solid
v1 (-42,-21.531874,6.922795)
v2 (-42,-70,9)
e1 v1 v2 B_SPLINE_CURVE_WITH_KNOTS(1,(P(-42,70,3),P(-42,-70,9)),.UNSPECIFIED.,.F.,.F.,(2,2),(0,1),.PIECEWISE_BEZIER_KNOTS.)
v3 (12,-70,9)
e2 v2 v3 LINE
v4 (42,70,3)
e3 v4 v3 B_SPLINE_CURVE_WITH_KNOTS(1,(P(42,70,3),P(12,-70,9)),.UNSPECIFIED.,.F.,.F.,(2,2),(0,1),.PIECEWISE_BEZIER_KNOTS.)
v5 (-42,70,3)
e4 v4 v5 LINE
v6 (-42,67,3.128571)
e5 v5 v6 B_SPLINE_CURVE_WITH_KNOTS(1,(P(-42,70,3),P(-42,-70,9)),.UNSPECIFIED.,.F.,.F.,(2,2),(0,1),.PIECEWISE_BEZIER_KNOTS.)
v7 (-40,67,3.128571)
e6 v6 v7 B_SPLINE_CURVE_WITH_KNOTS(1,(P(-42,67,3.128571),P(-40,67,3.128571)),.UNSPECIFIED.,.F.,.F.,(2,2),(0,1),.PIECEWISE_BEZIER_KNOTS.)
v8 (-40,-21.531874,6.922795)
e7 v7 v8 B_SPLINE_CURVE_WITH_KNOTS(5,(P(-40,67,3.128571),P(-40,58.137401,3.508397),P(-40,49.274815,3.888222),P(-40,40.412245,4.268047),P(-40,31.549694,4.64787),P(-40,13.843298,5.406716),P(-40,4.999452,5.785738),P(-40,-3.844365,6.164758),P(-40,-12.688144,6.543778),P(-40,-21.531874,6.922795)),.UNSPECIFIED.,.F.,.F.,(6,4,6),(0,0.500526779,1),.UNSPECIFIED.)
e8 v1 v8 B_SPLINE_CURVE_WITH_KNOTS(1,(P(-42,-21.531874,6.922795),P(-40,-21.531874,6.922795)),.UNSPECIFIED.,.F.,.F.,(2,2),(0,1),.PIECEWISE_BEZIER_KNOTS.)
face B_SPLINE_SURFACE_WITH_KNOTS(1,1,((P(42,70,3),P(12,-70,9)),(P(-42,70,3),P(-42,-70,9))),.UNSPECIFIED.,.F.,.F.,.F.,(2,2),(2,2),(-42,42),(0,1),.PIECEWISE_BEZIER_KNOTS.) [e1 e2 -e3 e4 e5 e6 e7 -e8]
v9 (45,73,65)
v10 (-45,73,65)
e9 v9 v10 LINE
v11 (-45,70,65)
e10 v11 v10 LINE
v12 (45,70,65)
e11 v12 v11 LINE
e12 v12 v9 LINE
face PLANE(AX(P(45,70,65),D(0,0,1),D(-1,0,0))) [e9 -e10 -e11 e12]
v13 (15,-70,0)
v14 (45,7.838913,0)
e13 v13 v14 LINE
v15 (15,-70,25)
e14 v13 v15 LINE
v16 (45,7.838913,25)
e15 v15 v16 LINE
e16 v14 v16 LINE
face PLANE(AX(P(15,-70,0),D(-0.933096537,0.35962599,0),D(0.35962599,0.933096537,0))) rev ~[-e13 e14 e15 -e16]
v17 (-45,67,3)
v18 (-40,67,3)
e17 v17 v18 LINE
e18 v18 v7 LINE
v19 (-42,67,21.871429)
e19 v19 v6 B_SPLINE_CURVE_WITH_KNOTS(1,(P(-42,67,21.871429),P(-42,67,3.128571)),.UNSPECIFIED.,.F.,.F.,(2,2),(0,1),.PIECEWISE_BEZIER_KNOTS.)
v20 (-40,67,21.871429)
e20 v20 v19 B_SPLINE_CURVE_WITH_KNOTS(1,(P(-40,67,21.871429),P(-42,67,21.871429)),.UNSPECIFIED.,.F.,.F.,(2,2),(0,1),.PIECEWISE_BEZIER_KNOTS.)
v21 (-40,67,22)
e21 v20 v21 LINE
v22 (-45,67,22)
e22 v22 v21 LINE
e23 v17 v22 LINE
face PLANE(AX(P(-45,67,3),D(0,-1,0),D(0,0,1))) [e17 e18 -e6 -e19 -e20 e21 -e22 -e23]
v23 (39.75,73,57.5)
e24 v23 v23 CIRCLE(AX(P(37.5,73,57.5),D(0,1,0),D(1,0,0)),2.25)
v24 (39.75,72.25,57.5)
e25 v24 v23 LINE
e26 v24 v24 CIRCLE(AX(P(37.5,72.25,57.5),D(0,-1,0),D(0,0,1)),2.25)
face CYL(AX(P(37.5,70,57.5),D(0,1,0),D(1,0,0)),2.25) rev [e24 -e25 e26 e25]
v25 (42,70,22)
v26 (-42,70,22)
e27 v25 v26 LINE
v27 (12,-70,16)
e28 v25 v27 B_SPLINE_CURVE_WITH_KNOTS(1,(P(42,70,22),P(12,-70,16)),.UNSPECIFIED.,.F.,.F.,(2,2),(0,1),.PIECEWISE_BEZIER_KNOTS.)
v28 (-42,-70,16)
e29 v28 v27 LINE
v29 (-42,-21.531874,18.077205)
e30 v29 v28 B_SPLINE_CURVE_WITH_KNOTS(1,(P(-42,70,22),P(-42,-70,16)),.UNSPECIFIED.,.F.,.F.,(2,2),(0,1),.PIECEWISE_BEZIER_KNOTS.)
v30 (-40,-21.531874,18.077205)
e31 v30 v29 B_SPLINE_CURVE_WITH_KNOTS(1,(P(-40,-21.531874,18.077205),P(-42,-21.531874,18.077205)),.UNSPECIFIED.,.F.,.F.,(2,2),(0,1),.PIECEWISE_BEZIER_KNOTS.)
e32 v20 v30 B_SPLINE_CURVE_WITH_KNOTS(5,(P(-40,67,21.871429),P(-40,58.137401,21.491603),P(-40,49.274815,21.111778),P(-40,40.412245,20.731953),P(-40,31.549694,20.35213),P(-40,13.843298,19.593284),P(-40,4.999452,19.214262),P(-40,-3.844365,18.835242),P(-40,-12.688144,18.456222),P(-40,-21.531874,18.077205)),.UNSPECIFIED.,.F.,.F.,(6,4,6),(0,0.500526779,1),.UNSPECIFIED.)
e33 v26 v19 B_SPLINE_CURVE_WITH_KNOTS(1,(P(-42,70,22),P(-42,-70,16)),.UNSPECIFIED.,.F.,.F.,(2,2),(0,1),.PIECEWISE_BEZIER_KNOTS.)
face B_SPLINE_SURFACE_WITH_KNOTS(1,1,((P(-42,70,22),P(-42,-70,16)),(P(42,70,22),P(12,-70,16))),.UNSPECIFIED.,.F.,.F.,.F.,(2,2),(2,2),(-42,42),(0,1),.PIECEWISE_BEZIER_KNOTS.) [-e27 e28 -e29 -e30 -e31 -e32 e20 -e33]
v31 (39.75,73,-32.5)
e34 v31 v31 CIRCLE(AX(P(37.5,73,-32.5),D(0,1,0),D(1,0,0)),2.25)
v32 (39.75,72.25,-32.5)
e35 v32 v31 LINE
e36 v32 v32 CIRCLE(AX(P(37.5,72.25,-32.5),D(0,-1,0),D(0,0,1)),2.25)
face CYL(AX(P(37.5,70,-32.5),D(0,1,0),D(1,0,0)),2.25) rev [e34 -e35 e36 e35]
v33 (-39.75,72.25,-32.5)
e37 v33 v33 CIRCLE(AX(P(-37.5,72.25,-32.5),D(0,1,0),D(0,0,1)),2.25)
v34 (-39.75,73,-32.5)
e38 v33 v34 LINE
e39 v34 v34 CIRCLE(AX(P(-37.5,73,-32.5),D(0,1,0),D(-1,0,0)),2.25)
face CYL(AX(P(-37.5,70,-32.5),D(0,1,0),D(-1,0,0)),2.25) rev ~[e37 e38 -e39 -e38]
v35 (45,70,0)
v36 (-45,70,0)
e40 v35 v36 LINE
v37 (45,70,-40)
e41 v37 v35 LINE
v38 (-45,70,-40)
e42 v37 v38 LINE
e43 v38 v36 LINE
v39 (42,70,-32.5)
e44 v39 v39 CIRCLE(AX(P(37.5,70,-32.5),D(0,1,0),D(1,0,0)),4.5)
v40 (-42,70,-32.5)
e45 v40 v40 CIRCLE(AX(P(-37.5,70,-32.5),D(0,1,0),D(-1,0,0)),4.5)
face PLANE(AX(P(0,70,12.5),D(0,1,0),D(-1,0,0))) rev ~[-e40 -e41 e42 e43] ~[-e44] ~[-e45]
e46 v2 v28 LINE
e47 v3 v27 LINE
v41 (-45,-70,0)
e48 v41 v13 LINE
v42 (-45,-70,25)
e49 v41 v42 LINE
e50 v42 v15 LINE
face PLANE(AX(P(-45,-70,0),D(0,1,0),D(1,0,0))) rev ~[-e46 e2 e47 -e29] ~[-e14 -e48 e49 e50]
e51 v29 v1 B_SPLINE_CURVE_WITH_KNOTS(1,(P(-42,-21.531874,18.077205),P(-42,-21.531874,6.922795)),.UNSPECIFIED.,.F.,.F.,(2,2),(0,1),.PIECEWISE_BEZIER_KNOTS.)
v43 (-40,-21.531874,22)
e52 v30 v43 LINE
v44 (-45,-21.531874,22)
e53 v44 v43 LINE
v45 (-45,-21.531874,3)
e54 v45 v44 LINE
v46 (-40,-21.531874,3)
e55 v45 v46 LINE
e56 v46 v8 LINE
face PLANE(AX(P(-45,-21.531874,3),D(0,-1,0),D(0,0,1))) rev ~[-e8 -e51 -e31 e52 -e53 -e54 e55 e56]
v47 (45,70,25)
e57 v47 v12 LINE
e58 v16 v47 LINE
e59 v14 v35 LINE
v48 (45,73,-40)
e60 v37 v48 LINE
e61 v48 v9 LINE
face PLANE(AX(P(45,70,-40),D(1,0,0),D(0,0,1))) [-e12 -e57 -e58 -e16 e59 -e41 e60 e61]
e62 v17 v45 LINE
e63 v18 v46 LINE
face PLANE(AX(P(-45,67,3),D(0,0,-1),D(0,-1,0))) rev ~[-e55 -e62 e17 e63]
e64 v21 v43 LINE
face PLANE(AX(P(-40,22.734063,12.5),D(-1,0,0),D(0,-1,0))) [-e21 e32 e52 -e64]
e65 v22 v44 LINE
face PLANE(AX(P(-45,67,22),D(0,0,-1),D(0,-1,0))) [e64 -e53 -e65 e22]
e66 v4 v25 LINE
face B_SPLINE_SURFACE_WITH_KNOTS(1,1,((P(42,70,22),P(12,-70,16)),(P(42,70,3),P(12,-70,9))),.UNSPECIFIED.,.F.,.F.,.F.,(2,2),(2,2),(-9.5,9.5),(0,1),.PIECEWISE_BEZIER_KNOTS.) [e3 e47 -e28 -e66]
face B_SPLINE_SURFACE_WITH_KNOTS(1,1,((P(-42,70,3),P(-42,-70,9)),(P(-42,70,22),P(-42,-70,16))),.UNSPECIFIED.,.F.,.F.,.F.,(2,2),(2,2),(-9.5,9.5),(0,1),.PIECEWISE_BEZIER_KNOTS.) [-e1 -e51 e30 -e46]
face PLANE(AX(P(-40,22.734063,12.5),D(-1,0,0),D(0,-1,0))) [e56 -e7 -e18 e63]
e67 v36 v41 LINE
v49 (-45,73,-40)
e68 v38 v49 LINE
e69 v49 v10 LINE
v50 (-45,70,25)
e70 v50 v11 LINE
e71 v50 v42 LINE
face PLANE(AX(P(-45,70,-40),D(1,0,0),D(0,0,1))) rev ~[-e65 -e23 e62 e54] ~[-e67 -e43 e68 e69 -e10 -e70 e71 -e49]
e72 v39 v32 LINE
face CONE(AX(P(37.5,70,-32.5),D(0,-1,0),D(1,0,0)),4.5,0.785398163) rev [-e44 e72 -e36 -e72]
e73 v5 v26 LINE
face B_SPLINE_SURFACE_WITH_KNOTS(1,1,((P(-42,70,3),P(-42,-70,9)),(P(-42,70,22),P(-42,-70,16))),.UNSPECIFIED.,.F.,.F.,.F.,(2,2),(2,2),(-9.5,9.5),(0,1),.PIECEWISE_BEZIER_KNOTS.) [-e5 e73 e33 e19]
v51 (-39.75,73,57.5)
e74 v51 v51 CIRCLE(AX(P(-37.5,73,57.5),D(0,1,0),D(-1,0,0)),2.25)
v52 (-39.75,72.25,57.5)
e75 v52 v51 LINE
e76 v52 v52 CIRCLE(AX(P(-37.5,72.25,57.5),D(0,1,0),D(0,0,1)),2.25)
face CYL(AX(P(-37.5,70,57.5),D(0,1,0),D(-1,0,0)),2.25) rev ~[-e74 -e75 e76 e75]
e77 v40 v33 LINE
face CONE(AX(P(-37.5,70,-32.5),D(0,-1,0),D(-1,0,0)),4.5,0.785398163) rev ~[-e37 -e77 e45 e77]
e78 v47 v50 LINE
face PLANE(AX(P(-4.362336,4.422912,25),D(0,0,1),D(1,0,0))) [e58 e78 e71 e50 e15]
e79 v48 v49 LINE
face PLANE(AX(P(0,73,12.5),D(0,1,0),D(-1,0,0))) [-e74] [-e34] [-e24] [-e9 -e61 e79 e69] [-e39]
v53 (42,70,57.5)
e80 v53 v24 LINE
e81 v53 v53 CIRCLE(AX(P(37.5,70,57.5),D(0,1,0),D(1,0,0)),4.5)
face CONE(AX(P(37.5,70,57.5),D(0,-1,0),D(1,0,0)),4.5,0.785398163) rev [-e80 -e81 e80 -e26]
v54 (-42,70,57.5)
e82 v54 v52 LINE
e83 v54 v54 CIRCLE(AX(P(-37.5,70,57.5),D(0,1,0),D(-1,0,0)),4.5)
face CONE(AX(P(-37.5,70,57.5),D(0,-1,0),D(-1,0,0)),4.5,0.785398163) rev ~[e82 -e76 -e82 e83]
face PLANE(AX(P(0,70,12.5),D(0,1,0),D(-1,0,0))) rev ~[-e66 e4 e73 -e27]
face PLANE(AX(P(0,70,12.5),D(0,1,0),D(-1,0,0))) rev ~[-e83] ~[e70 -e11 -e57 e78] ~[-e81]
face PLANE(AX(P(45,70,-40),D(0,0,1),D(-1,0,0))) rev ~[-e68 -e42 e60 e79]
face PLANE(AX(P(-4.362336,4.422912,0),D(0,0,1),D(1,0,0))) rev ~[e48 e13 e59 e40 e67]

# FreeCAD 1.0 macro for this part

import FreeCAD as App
import Part
import Sketcher

V = App.Vector

doc = App.newDocument("Part")
body = doc.addObject("PartDesign::Body", "Body")

sketch1 = body.newObject("Sketcher::SketchObject", "Sketch")
sketch1.AttachmentSupport = (doc.getObject("XY_Plane"), [""])
sketch1.MapMode = "FlatFace"
sketch1.addGeometry(Part.LineSegment(V(-45, 70, 0), V(-45, -70, 0)), False)
sketch1.addGeometry(Part.LineSegment(V(-45, -70, 0), V(15, -70, 0)), False)
sketch1.addGeometry(Part.LineSegment(V(15, -70, 0), V(45, 8, 0)), False)
sketch1.addGeometry(Part.LineSegment(V(45, 8, 0), V(45, 70, 0)), False)
sketch1.addGeometry(Part.LineSegment(V(45, 70, 0), V(-45, 70, 0)), False)
sketch1.addConstraint(Sketcher.Constraint("Coincident", 0, 2, 1, 1))
sketch1.addConstraint(Sketcher.Constraint("Coincident", 1, 2, 2, 1))
sketch1.addConstraint(Sketcher.Constraint("Coincident", 2, 2, 3, 1))
sketch1.addConstraint(Sketcher.Constraint("Coincident", 3, 2, 4, 1))
sketch1.addConstraint(Sketcher.Constraint("Coincident", 4, 2, 0, 1))
sketch1.addConstraint(Sketcher.Constraint("Vertical", 0))
sketch1.addConstraint(Sketcher.Constraint("Horizontal", 1))
sketch1.addConstraint(Sketcher.Constraint("Vertical", 3))
sketch1.addConstraint(Sketcher.Constraint("Horizontal", 4))
sketch1.addConstraint(Sketcher.Constraint("Symmetric", 0, 2, 3, 2, -1, 1))
sketch1.addConstraint(Sketcher.Constraint("DistanceX", 1, 1, 1, 2, 60.0))
sketch1.addConstraint(Sketcher.Constraint("DistanceX", 4, 2, 4, 1, 90.0))
sketch1.addConstraint(Sketcher.Constraint("DistanceY", 0, 2, 0, 1, 140.0))
sketch1.addConstraint(Sketcher.Constraint("Distance", 2, 83.42))
pad1 = body.newObject("PartDesign::Pad", "Pad")
pad1.Profile = sketch1
pad1.Length = 25

sketch2 = body.newObject("Sketcher::SketchObject", "Sketch001")
sketch2.AttachmentSupport = (doc.getObject("XZ_Plane"), [""])
sketch2.MapMode = "FlatFace"
sketch2.AttachmentOffset = App.Placement(V(0, 0, -70), App.Rotation())
sketch2.addGeometry(Part.LineSegment(V(42, 22, 0), V(42, 3, 0)), False)
sketch2.addGeometry(Part.LineSegment(V(42, 3, 0), V(-42, 3, 0)), False)
sketch2.addGeometry(Part.LineSegment(V(-42, 3, 0), V(-42, 22, 0)), False)
sketch2.addGeometry(Part.LineSegment(V(-42, 22, 0), V(42, 22, 0)), False)
sketch2.addConstraint(Sketcher.Constraint("Coincident", 0, 2, 1, 1))
sketch2.addConstraint(Sketcher.Constraint("Coincident", 1, 2, 2, 1))
sketch2.addConstraint(Sketcher.Constraint("Coincident", 2, 2, 3, 1))
sketch2.addConstraint(Sketcher.Constraint("Coincident", 3, 2, 0, 1))
sketch2.addConstraint(Sketcher.Constraint("Vertical", 0))
sketch2.addConstraint(Sketcher.Constraint("Horizontal", 1))
sketch2.addConstraint(Sketcher.Constraint("Vertical", 2))
sketch2.addConstraint(Sketcher.Constraint("Horizontal", 3))
sketch2.addConstraint(Sketcher.Constraint("DistanceX", 1, 2, 1, 1, 84.0))
sketch2.addConstraint(Sketcher.Constraint("DistanceY", 0, 2, 0, 1, 19.0))
sketch2.addConstraint(Sketcher.Constraint("DistanceX", -1, 1, 0, 2, 42.0))
sketch2.addConstraint(Sketcher.Constraint("DistanceY", -1, 1, 0, 2, 3.0))

sketch3 = body.newObject("Sketcher::SketchObject", "Sketch002")
sketch3.AttachmentSupport = (doc.getObject("XZ_Plane"), [""])
sketch3.MapMode = "FlatFace"
sketch3.AttachmentOffset = App.Placement(V(0, 0, 70), App.Rotation())
sketch3.addGeometry(Part.LineSegment(V(-42, 16, 0), V(-42, 9, 0)), False)
sketch3.addGeometry(Part.LineSegment(V(-42, 9, 0), V(12, 9, 0)), False)
sketch3.addGeometry(Part.LineSegment(V(12, 9, 0), V(12, 16, 0)), False)
sketch3.addGeometry(Part.LineSegment(V(12, 16, 0), V(-42, 16, 0)), False)
sketch3.addConstraint(Sketcher.Constraint("Coincident", 0, 2, 1, 1))
sketch3.addConstraint(Sketcher.Constraint("Coincident", 1, 2, 2, 1))
sketch3.addConstraint(Sketcher.Constraint("Coincident", 2, 2, 3, 1))
sketch3.addConstraint(Sketcher.Constraint("Coincident", 3, 2, 0, 1))
sketch3.addConstraint(Sketcher.Constraint("Vertical", 0))
sketch3.addConstraint(Sketcher.Constraint("Horizontal", 1))
sketch3.addConstraint(Sketcher.Constraint("Vertical", 2))
sketch3.addConstraint(Sketcher.Constraint("Horizontal", 3))
sketch3.addConstraint(Sketcher.Constraint("DistanceX", 1, 1, 1, 2, 54.0))
sketch3.addConstraint(Sketcher.Constraint("DistanceY", 0, 2, 0, 1, 7.0))
sketch3.addConstraint(Sketcher.Constraint("DistanceX", 0, 2, -1, 1, 42.0))
sketch3.addConstraint(Sketcher.Constraint("DistanceY", -1, 1, 0, 2, 9.0))

subtractiveloft = body.newObject("PartDesign::SubtractiveLoft", "SubtractiveLoft")
subtractiveloft.Profile = sketch2
subtractiveloft.Sections = [sketch3]

sketch4 = body.newObject("Sketcher::SketchObject", "Sketch003")
sketch4.AttachmentSupport = (doc.getObject("YZ_Plane"), [""])
sketch4.MapMode = "FlatFace"
sketch4.AttachmentOffset = App.Placement(V(0, 0, -45), App.Rotation())
sketch4.addGeometry(Part.LineSegment(V(67, 22, 0), V(67, 3, 0)), False)
sketch4.addGeometry(Part.LineSegment(V(67, 3, 0), V(-22, 3, 0)), False)
sketch4.addGeometry(Part.LineSegment(V(-22, 3, 0), V(-22, 22, 0)), False)
sketch4.addGeometry(Part.LineSegment(V(-22, 22, 0), V(67, 22, 0)), False)
sketch4.addConstraint(Sketcher.Constraint("Coincident", 0, 2, 1, 1))
sketch4.addConstraint(Sketcher.Constraint("Coincident", 1, 2, 2, 1))
sketch4.addConstraint(Sketcher.Constraint("Coincident", 2, 2, 3, 1))
sketch4.addConstraint(Sketcher.Constraint("Coincident", 3, 2, 0, 1))
sketch4.addConstraint(Sketcher.Constraint("Vertical", 0))
sketch4.addConstraint(Sketcher.Constraint("Horizontal", 1))
sketch4.addConstraint(Sketcher.Constraint("Vertical", 2))
sketch4.addConstraint(Sketcher.Constraint("Horizontal", 3))
sketch4.addConstraint(Sketcher.Constraint("DistanceY", 0, 2, 0, 1, 19.0))
sketch4.addConstraint(Sketcher.Constraint("DistanceX", -1, 1, 0, 2, 67.0))
sketch4.addConstraint(Sketcher.Constraint("DistanceY", -1, 1, 0, 2, 3.0))
sketch4.addConstraint(Sketcher.Constraint("DistanceX", 1, 2, 1, 1, 88.531874))
pocket1 = body.newObject("PartDesign::Pocket", "Pocket")
pocket1.Profile = sketch4
pocket1.Length = 5
pocket1.Reversed = True

sketch5 = body.newObject("Sketcher::SketchObject", "Sketch004")
sketch5.AttachmentSupport = (doc.getObject("XZ_Plane"), [""])
sketch5.MapMode = "FlatFace"
sketch5.AttachmentOffset = App.Placement(V(0, 0, -70), App.Rotation())
sketch5.addGeometry(Part.LineSegment(V(45, 65, 0), V(45, -40, 0)), False)
sketch5.addGeometry(Part.LineSegment(V(45, -40, 0), V(-45, -40, 0)), False)
sketch5.addGeometry(Part.LineSegment(V(-45, -40, 0), V(-45, 65, 0)), False)
sketch5.addGeometry(Part.LineSegment(V(-45, 65, 0), V(45, 65, 0)), False)
sketch5.addConstraint(Sketcher.Constraint("Coincident", 0, 2, 1, 1))
sketch5.addConstraint(Sketcher.Constraint("Coincident", 1, 2, 2, 1))
sketch5.addConstraint(Sketcher.Constraint("Coincident", 2, 2, 3, 1))
sketch5.addConstraint(Sketcher.Constraint("Coincident", 3, 2, 0, 1))
sketch5.addConstraint(Sketcher.Constraint("Vertical", 0))
sketch5.addConstraint(Sketcher.Constraint("Horizontal", 1))
sketch5.addConstraint(Sketcher.Constraint("Vertical", 2))
sketch5.addConstraint(Sketcher.Constraint("Horizontal", 3))
sketch5.addConstraint(Sketcher.Constraint("DistanceX", 1, 2, 1, 1, 90.0))
sketch5.addConstraint(Sketcher.Constraint("DistanceY", 0, 2, 0, 1, 105.0))
sketch5.addConstraint(Sketcher.Constraint("DistanceX", -1, 1, 0, 2, 45.0))
sketch5.addConstraint(Sketcher.Constraint("DistanceY", 0, 2, -1, 1, 40.0))
pad2 = body.newObject("PartDesign::Pad", "Pad001")
pad2.Profile = sketch5
pad2.Length = 3
pad2.Reversed = True

sketch6 = body.newObject("Sketcher::SketchObject", "Sketch005")
sketch6.AttachmentSupport = (doc.getObject("XZ_Plane"), [""])
sketch6.MapMode = "FlatFace"
sketch6.AttachmentOffset = App.Placement(V(0, 0, -70), App.Rotation())
sketch6.addGeometry(Part.Circle(V(-37.5, 57.5, 0), V(0, 0, 1), 2.2), False)
sketch6.addGeometry(Part.Circle(V(-37.5, -32.5, 0), V(0, 0, 1), 2.2), False)
sketch6.addConstraint(Sketcher.Constraint("Equal", 0, 1))
sketch6.addConstraint(Sketcher.Constraint("Vertical", 0, 3, 1, 3))
sketch6.addConstraint(Sketcher.Constraint("Diameter", 0, 4.5))
sketch6.addConstraint(Sketcher.Constraint("DistanceY", 1, 3, 0, 3, 90.0))
sketch6.addConstraint(Sketcher.Constraint("DistanceX", 0, 3, -1, 1, 37.5))
sketch6.addConstraint(Sketcher.Constraint("DistanceY", -1, 1, 0, 3, 57.5))
doc.recompute()
hole = body.newObject("PartDesign::Hole", "Hole")
hole.Profile = sketch6
hole.ThreadType = "None"
hole.Diameter = 4.5
hole.DepthType = "Dimension"
hole.Depth = 25
hole.DrillPoint = "Flat"
hole.HoleCutType = "Countersink"
hole.HoleCutDiameter = 9
hole.HoleCutCountersinkAngle = 90
doc.recompute()

mirrored = body.newObject("PartDesign::Mirrored", "Mirrored")
mirrored.Originals = [hole]
mirrored.MirrorPlane = (doc.getObject("YZ_Plane"), [""])
body.Tip = mirrored

doc.recompute()
